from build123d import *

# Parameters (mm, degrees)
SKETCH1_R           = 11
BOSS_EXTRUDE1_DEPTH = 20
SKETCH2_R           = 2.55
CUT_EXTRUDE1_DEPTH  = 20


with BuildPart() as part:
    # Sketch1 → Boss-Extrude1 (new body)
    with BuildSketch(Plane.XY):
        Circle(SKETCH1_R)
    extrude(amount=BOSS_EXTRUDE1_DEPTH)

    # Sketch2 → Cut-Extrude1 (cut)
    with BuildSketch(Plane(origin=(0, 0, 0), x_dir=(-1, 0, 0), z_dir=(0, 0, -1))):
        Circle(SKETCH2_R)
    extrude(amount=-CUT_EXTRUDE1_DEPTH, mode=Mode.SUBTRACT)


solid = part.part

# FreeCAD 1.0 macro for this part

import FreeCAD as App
import Part
import Sketcher
Q = App.Units.Quantity

doc = App.newDocument("Part")
body = doc.addObject("PartDesign::Body", "Body")

sketch1 = body.newObject("Sketcher::SketchObject", "Sketch")
sketch1.AttachmentSupport = (doc.getObject("XY_Plane"), [""])
sketch1.MapMode = "FlatFace"
sketch1.addGeometry(Part.Circle(App.Vector(0, 0, 0), App.Vector(0, 0, 1), 11), False)
sketch1.addConstraint([
    Sketcher.Constraint("Coincident", 0, 3, -1, 1),
    Sketcher.Constraint("Diameter", 0, Q("22 mm")),
])
pad1 = body.newObject("PartDesign::Pad", "Pad")
pad1.Profile = sketch1
pad1.Length = 20

sketch2 = body.newObject("Sketcher::SketchObject", "Sketch001")
sketch2.AttachmentSupport = (doc.getObject("XY_Plane"), [""])
sketch2.MapMode = "FlatFace"
sketch2.addGeometry(Part.Circle(App.Vector(0, 0, 0), App.Vector(0, 0, 1), 2.5), False)
sketch2.addConstraint([
    Sketcher.Constraint("Coincident", 0, 3, -1, 1),
    Sketcher.Constraint("Diameter", 0, Q("5.1 mm")),
])
pocket1 = body.newObject("PartDesign::Pocket", "Pocket")
pocket1.Profile = sketch2
pocket1.Length = 20
pocket1.Reversed = True

doc.recompute()
